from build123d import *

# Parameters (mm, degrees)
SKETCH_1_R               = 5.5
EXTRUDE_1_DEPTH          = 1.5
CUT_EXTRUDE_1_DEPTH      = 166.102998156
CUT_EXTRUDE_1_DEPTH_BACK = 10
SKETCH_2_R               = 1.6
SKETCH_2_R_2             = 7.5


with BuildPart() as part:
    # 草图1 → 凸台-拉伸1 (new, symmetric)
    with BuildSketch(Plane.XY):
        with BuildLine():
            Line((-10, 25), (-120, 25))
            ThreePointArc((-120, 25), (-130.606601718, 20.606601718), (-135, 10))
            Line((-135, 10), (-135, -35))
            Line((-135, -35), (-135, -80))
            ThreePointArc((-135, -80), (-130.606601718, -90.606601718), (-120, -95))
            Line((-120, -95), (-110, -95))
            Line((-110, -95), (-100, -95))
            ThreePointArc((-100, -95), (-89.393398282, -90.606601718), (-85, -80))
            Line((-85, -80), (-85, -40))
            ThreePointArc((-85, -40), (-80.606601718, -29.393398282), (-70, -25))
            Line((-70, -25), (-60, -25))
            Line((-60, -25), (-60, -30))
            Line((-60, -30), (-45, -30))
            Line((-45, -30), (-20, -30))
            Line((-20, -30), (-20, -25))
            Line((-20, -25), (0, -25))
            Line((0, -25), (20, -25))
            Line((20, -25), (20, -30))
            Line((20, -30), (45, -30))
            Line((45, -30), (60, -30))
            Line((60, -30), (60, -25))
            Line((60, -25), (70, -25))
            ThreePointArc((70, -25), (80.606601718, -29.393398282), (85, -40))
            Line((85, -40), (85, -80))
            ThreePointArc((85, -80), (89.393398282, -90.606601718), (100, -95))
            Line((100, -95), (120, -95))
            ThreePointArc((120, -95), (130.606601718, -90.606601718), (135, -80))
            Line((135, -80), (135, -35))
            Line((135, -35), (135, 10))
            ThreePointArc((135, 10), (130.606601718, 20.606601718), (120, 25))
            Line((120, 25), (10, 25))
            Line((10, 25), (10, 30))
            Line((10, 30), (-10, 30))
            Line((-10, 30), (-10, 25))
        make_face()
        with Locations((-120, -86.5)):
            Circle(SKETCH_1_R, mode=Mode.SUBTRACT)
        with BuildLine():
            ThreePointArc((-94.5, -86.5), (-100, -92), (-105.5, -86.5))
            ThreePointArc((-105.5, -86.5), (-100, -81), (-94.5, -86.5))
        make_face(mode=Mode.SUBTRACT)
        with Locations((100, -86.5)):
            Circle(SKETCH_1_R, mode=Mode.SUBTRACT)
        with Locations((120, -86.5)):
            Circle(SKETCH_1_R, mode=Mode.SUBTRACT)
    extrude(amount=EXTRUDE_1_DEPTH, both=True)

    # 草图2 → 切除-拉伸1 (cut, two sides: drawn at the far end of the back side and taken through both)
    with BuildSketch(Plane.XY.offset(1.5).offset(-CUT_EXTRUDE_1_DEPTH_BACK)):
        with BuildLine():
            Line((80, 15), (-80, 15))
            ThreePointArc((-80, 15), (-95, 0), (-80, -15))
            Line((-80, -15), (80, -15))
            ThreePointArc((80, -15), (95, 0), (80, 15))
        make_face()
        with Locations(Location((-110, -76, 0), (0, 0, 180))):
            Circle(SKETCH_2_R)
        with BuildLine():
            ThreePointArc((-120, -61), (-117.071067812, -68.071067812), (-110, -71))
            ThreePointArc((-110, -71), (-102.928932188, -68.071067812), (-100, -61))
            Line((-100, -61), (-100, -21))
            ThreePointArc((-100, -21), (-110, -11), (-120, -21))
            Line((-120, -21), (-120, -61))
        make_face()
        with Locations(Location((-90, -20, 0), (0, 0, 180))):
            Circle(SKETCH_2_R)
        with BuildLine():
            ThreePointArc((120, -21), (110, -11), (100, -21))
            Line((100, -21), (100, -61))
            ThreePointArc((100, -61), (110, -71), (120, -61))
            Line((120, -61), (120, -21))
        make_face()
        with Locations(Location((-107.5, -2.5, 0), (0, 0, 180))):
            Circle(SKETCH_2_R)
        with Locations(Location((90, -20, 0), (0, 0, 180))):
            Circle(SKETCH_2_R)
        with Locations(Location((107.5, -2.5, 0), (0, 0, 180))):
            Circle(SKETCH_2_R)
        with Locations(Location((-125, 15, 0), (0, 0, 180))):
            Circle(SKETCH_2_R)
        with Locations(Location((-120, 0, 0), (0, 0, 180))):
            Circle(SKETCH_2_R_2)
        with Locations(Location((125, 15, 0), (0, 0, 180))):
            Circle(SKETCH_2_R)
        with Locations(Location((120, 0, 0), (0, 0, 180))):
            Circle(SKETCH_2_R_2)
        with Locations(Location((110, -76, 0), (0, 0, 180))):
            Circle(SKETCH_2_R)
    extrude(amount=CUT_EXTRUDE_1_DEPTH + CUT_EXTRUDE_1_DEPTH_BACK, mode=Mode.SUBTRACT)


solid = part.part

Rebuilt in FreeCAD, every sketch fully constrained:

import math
import FreeCAD as App
import Part
import Sketcher

V = App.Vector

doc = App.newDocument("Part")
params = doc.addObject("Spreadsheet::Sheet", "Params")
for row, (alias, value) in enumerate([
    ("sketch1_diameter", "11 mm"),
    ("sketch1_radius", "15 mm"),
    ("sketch1_width", "110 mm"),
    ("sketch1_width2", "20 mm"),
    ("sketch1_width3", "10 mm"),
    ("pad1_length", "3 mm"),
    ("sketch2_diameter", "15 mm"),
    ("sketch2_radius", "15 mm"),
    ("sketch2_radius2", "10 mm"),
    ("sketch2_diameter2", "3.2 mm"),
    ("sketch2_width", "160 mm"),
], start=1):
    params.set(f"A{row}", alias)
    params.set(f"B{row}", "=" + value)
    params.setAlias(f"B{row}", alias)

body = doc.addObject("PartDesign::Body", "Body")

# Sketch on XY plane
sketch1 = doc.addObject("Sketcher::SketchObject", "Sketch")
body.addObject(sketch1)
sketch1.AttachmentSupport = (doc.XY_Plane, [""])
sketch1.MapMode = "FlatFace"
sketch1.addGeometry([
    Part.LineSegment(V(-10, 25, 0), V(-120, 25, 0)),  # 0
    Part.ArcOfCircle(Part.Circle(V(-120, 10, 0), V(0, 0, 1), 15), math.radians(90), math.radians(180)),  # 1
    Part.LineSegment(V(-135, 10, 0), V(-135, -80, 0)),  # 2
    Part.ArcOfCircle(Part.Circle(V(-120, -80, 0), V(0, 0, 1), 15), math.radians(180), math.radians(270)),  # 3
    Part.LineSegment(V(-120, -95, 0), V(-100, -95, 0)),  # 4
    Part.ArcOfCircle(Part.Circle(V(-100, -80, 0), V(0, 0, 1), 15), math.radians(-90), math.radians(0)),  # 5
    Part.LineSegment(V(-85, -80, 0), V(-85, -40, 0)),  # 6
    Part.ArcOfCircle(Part.Circle(V(-70, -40, 0), V(0, 0, 1), 15), math.radians(90), math.radians(180)),  # 7
    Part.LineSegment(V(-70, -25, 0), V(-60, -25, 0)),  # 8
    Part.LineSegment(V(-60, -25, 0), V(-60, -30, 0)),  # 9
    Part.LineSegment(V(-60, -30, 0), V(-20, -30, 0)),  # 10
    Part.LineSegment(V(-20, -30, 0), V(-20, -25, 0)),  # 11
    Part.LineSegment(V(-20, -25, 0), V(20, -25, 0)),  # 12
    Part.LineSegment(V(20, -25, 0), V(20, -30, 0)),  # 13
    Part.LineSegment(V(20, -30, 0), V(60, -30, 0)),  # 14
    Part.LineSegment(V(60, -30, 0), V(60, -25, 0)),  # 15
    Part.LineSegment(V(60, -25, 0), V(70, -25, 0)),  # 16
    Part.ArcOfCircle(Part.Circle(V(70, -40, 0), V(0, 0, 1), 15), math.radians(0), math.radians(90)),  # 17
    Part.LineSegment(V(85, -40, 0), V(85, -80, 0)),  # 18
    Part.ArcOfCircle(Part.Circle(V(100, -80, 0), V(0, 0, 1), 15), math.radians(180), math.radians(270)),  # 19
    Part.LineSegment(V(100, -95, 0), V(120, -95, 0)),  # 20
    Part.ArcOfCircle(Part.Circle(V(120, -80, 0), V(0, 0, 1), 15), math.radians(-90), math.radians(0)),  # 21
    Part.LineSegment(V(135, -80, 0), V(135, 10, 0)),  # 22
    Part.ArcOfCircle(Part.Circle(V(120, 10, 0), V(0, 0, 1), 15), math.radians(0), math.radians(90)),  # 23
    Part.LineSegment(V(120, 25, 0), V(10, 25, 0)),  # 24
    Part.LineSegment(V(10, 25, 0), V(10, 30, 0)),  # 25
    Part.LineSegment(V(10, 30, 0), V(-10, 30, 0)),  # 26
    Part.LineSegment(V(-10, 30, 0), V(-10, 25, 0)),  # 27
    Part.Circle(V(-120, -86.5, 0), V(0, 0, 1), 5.5),  # 28
    Part.Circle(V(-100, -86.5, 0), V(0, 0, 1), 5.5),  # 29
    Part.Circle(V(100, -86.5, 0), V(0, 0, 1), 5.5),  # 30
    Part.Circle(V(120, -86.5, 0), V(0, 0, 1), 5.5),  # 31
], False)
sketch1.addConstraint([
    Sketcher.Constraint("Tangent", 0, 2, 1, 1),
    Sketcher.Constraint("Tangent", 1, 2, 2, 1),
    Sketcher.Constraint("Tangent", 2, 2, 3, 1),
    Sketcher.Constraint("Tangent", 3, 2, 4, 1),
    Sketcher.Constraint("Tangent", 4, 2, 5, 1),
    Sketcher.Constraint("Tangent", 5, 2, 6, 1),
    Sketcher.Constraint("Tangent", 6, 2, 7, 2),
    Sketcher.Constraint("Tangent", 7, 1, 8, 1),
    Sketcher.Constraint("Coincident", 8, 2, 9, 1),
    Sketcher.Constraint("Coincident", 9, 2, 10, 1),
    Sketcher.Constraint("Coincident", 10, 2, 11, 1),
    Sketcher.Constraint("Coincident", 11, 2, 12, 1),
    Sketcher.Constraint("Coincident", 12, 2, 13, 1),
    Sketcher.Constraint("Coincident", 13, 2, 14, 1),
    Sketcher.Constraint("Coincident", 14, 2, 15, 1),
    Sketcher.Constraint("Coincident", 15, 2, 16, 1),
    Sketcher.Constraint("Tangent", 16, 2, 17, 2),
    Sketcher.Constraint("Tangent", 17, 1, 18, 1),
    Sketcher.Constraint("Tangent", 18, 2, 19, 1),
    Sketcher.Constraint("Tangent", 19, 2, 20, 1),
    Sketcher.Constraint("Tangent", 20, 2, 21, 1),
    Sketcher.Constraint("Tangent", 21, 2, 22, 1),
    Sketcher.Constraint("Tangent", 22, 2, 23, 1),
    Sketcher.Constraint("Tangent", 23, 2, 24, 1),
    Sketcher.Constraint("Coincident", 24, 2, 25, 1),
    Sketcher.Constraint("Coincident", 25, 2, 26, 1),
    Sketcher.Constraint("Coincident", 26, 2, 27, 1),
    Sketcher.Constraint("Coincident", 27, 2, 0, 1),
    Sketcher.Constraint("Horizontal", 0),
    Sketcher.Constraint("Vertical", 2),
    Sketcher.Constraint("Horizontal", 4),
    Sketcher.Constraint("Vertical", 6),
    Sketcher.Constraint("Horizontal", 8),
    Sketcher.Constraint("Vertical", 9),
    Sketcher.Constraint("Horizontal", 10),
    Sketcher.Constraint("Vertical", 11),
    Sketcher.Constraint("Horizontal", 12),
    Sketcher.Constraint("Vertical", 13),
    Sketcher.Constraint("Horizontal", 14),
    Sketcher.Constraint("Vertical", 15),
    Sketcher.Constraint("Horizontal", 16),
    Sketcher.Constraint("Vertical", 18),
    Sketcher.Constraint("Horizontal", 20),
    Sketcher.Constraint("Vertical", 22),
    Sketcher.Constraint("Horizontal", 24),
    Sketcher.Constraint("Vertical", 25),
    Sketcher.Constraint("Horizontal", 26),
    Sketcher.Constraint("Vertical", 27),
    Sketcher.Constraint("Equal", 1, 3),
    Sketcher.Constraint("Equal", 3, 5),
    Sketcher.Constraint("Equal", 5, 7),
    Sketcher.Constraint("Equal", 7, 17),
    Sketcher.Constraint("Equal", 17, 19),
    Sketcher.Constraint("Equal", 19, 21),
    Sketcher.Constraint("Equal", 21, 23),
    Sketcher.Constraint("Equal", 28, 29),
    Sketcher.Constraint("Equal", 29, 30),
    Sketcher.Constraint("Equal", 30, 31),
    Sketcher.Constraint("Symmetric", 7, 3, 17, 3, -2),
    Sketcher.Constraint("Symmetric", 3, 3, 21, 3, -2),
    Sketcher.Constraint("Symmetric", 29, 3, 30, 3, -2),
    Sketcher.Constraint("Symmetric", 28, 3, 31, 3, -2),
    Sketcher.Constraint("Symmetric", 10, 2, 13, 2, -2),
    Sketcher.Constraint("Symmetric", 24, 2, 27, 2, -2),
    Sketcher.Constraint("Horizontal", 28, 3, 29, 3),
    Sketcher.Constraint("Horizontal", 8, 2, 11, 2),
    Sketcher.Constraint("Vertical", 3, 3, 28, 3),
    Sketcher.Constraint("Vertical", 5, 3, 29, 3),
    Sketcher.Constraint("Equal", 10, 12),
    Sketcher.Constraint("Equal", 12, 14),
    Sketcher.Constraint("Equal", 20, 26),
    Sketcher.Constraint("Equal", 14, 6),
    Sketcher.Constraint("Equal", 15, 25),
    Sketcher.Constraint("Diameter", 28, 11.0),
    Sketcher.Constraint("Radius", 1, 15.0),
    Sketcher.Constraint("DistanceX", 0, 2, 0, 1, 110.0),
    Sketcher.Constraint("DistanceX", 4, 1, 4, 2, 20.0),
    Sketcher.Constraint("DistanceX", 8, 1, 8, 2, 10.0),
    Sketcher.Constraint("DistanceY", 2, 2, 2, 1, 90.0),
    Sketcher.Constraint("DistanceY", 9, 2, 9, 1, 5.0),
    Sketcher.Constraint("DistanceY", -1, 1, 1, 3, 10.0),
    Sketcher.Constraint("DistanceY", 28, 3, -1, 1, 86.5),
])
sketch1.setExpression("Constraints[73]", "Params.sketch1_diameter")
sketch1.setExpression("Constraints[74]", "Params.sketch1_radius")
sketch1.setExpression("Constraints[75]", "Params.sketch1_width")
sketch1.setExpression("Constraints[76]", "Params.sketch1_width2")
sketch1.setExpression("Constraints[77]", "Params.sketch1_width3")
pad1 = doc.addObject("PartDesign::Pad", "Pad")
body.addObject(pad1)
pad1.Profile = sketch1
pad1.setExpression("Length", "Params.pad1_length")
pad1.Midplane = True

# Sketch on XY plane
sketch2 = doc.addObject("Sketcher::SketchObject", "Sketch001")
body.addObject(sketch2)
sketch2.AttachmentSupport = (doc.XY_Plane, [""])
sketch2.MapMode = "FlatFace"
sketch2.AttachmentOffset = App.Placement(V(0, 0, 1.5), App.Rotation())
sketch2.addGeometry([
    Part.LineSegment(V(80, 15, 0), V(-80, 15, 0)),  # 0
    Part.ArcOfCircle(Part.Circle(V(-80, 0, 0), V(0, 0, 1), 15), math.radians(90), math.radians(270)),  # 1
    Part.LineSegment(V(-80, -15, 0), V(80, -15, 0)),  # 2
    Part.ArcOfCircle(Part.Circle(V(80, 0, 0), V(0, 0, 1), 15), math.radians(-90), math.radians(90)),  # 3
    Part.Circle(V(-110, -76, 0), V(0, 0, 1), 1.6),  # 4
    Part.ArcOfCircle(Part.Circle(V(-110, -61, 0), V(0, 0, 1), 10), math.radians(180), math.radians(270)),  # 5
    Part.ArcOfCircle(Part.Circle(V(-110, -61, 0), V(0, 0, 1), 10), math.radians(-90), math.radians(0)),  # 6
    Part.LineSegment(V(-100, -61, 0), V(-100, -21, 0)),  # 7
    Part.ArcOfCircle(Part.Circle(V(-110, -21, 0), V(0, 0, 1), 10), math.radians(0), math.radians(180)),  # 8
    Part.LineSegment(V(-120, -21, 0), V(-120, -61, 0)),  # 9
    Part.Circle(V(-90, -20, 0), V(0, 0, 1), 1.6),  # 10
    Part.ArcOfCircle(Part.Circle(V(110, -21, 0), V(0, 0, 1), 10), math.radians(0), math.radians(180)),  # 11
    Part.LineSegment(V(100, -21, 0), V(100, -61, 0)),  # 12
    Part.ArcOfCircle(Part.Circle(V(110, -61, 0), V(0, 0, 1), 10), math.radians(180), math.radians(360)),  # 13
    Part.LineSegment(V(120, -61, 0), V(120, -21, 0)),  # 14
    Part.Circle(V(-107.5, -2.5, 0), V(0, 0, 1), 1.6),  # 15
    Part.Circle(V(90, -20, 0), V(0, 0, 1), 1.6),  # 16
    Part.Circle(V(107.5, -2.5, 0), V(0, 0, 1), 1.6),  # 17
    Part.Circle(V(-125, 15, 0), V(0, 0, 1), 1.6),  # 18
    Part.Circle(V(-120, 0, 0), V(0, 0, 1), 7.5),  # 19
    Part.Circle(V(125, 15, 0), V(0, 0, 1), 1.6),  # 20
    Part.Circle(V(120, 0, 0), V(0, 0, 1), 7.5),  # 21
    Part.Circle(V(110, -76, 0), V(0, 0, 1), 1.6),  # 22
], False)
sketch2.addConstraint([
    Sketcher.Constraint("Tangent", 0, 2, 1, 1),
    Sketcher.Constraint("Tangent", 1, 2, 2, 1),
    Sketcher.Constraint("Tangent", 2, 2, 3, 1),
    Sketcher.Constraint("Tangent", 3, 2, 0, 1),
    Sketcher.Constraint("Tangent", 5, 2, 6, 1),
    Sketcher.Constraint("Tangent", 6, 2, 7, 1),
    Sketcher.Constraint("Tangent", 7, 2, 8, 1),
    Sketcher.Constraint("Tangent", 8, 2, 9, 1),
    Sketcher.Constraint("Tangent", 9, 2, 5, 1),
    Sketcher.Constraint("Tangent", 11, 2, 12, 1),
    Sketcher.Constraint("Tangent", 12, 2, 13, 1),
    Sketcher.Constraint("Tangent", 13, 2, 14, 1),
    Sketcher.Constraint("Tangent", 14, 2, 11, 1),
    Sketcher.Constraint("Horizontal", 0),
    Sketcher.Constraint("Horizontal", 2),
    Sketcher.Constraint("Vertical", 7),
    Sketcher.Constraint("Vertical", 9),
    Sketcher.Constraint("Vertical", 12),
    Sketcher.Constraint("Vertical", 14),
    Sketcher.Constraint("Equal", 5, 6),
    Sketcher.Constraint("Equal", 4, 10),
    Sketcher.Constraint("Equal", 8, 11),
    Sketcher.Constraint("Equal", 10, 15),
    Sketcher.Constraint("Equal", 15, 16),
    Sketcher.Constraint("Equal", 16, 17),
    Sketcher.Constraint("Equal", 17, 18),
    Sketcher.Constraint("Equal", 18, 20),
    Sketcher.Constraint("Equal", 19, 21),
    Sketcher.Constraint("Equal", 20, 22),
    Sketcher.Constraint("Symmetric", 1, 3, 3, 3, -1, 1),
    Sketcher.Constraint("Symmetric", 19, 3, 21, 3, -1, 1),
    Sketcher.Constraint("Symmetric", 8, 3, 11, 3, -2),
    Sketcher.Constraint("Symmetric", 10, 3, 16, 3, -2),
    Sketcher.Constraint("Symmetric", 15, 3, 17, 3, -2),
    Sketcher.Constraint("Symmetric", 18, 3, 20, 3, -2),
    Sketcher.Constraint("Symmetric", 4, 3, 22, 3, -2),
    Sketcher.Constraint("PointOnObject", 19, 3, -1),
    Sketcher.Constraint("Horizontal", 6, 3, 13, 3),
    Sketcher.Constraint("Horizontal", 20, 3, 0, 2),
    Sketcher.Constraint("Vertical", 4, 3, 5, 3),
    Sketcher.Constraint("Vertical", 8, 3, 5, 2),
    Sketcher.Constraint("Vertical", 19, 3, 8, 2),
    Sketcher.Constraint("Diameter", 19, 15.0),
    Sketcher.Constraint("Radius", 1, 15.0),
    Sketcher.Constraint("Radius", 5, 10.0),
    Sketcher.Constraint("Diameter", 4, 3.2),
    Sketcher.Constraint("DistanceX", 0, 2, 0, 1, 160.0),
    Sketcher.Constraint("DistanceY", 7, 1, 7, 2, 40.0),
    Sketcher.Constraint("DistanceX", 4, 3, -1, 1, 110.0),
    Sketcher.Constraint("DistanceY", 4, 3, -1, 1, 76.0),
    Sketcher.Constraint("DistanceY", 5, 3, -1, 1, 61.0),
    Sketcher.Constraint("DistanceX", 10, 3, -1, 1, 90.0),
    Sketcher.Constraint("DistanceY", 10, 3, -1, 1, 20.0),
    Sketcher.Constraint("DistanceX", 18, 3, -1, 1, 125.0),
    Sketcher.Constraint("DistanceX", 15, 3, -1, 1, 107.5),
    Sketcher.Constraint("DistanceY", 15, 3, -1, 1, 2.5),
])
sketch2.setExpression("Constraints[42]", "Params.sketch2_diameter")
sketch2.setExpression("Constraints[43]", "Params.sketch2_radius")
sketch2.setExpression("Constraints[44]", "Params.sketch2_radius2")
sketch2.setExpression("Constraints[45]", "Params.sketch2_diameter2")
sketch2.setExpression("Constraints[46]", "Params.sketch2_width")
pocket1 = doc.addObject("PartDesign::Pocket", "Pocket")
body.addObject(pocket1)
pocket1.Profile = sketch2
pocket1.Type = "ThroughAll"
pocket1.Midplane = True

doc.recompute()
